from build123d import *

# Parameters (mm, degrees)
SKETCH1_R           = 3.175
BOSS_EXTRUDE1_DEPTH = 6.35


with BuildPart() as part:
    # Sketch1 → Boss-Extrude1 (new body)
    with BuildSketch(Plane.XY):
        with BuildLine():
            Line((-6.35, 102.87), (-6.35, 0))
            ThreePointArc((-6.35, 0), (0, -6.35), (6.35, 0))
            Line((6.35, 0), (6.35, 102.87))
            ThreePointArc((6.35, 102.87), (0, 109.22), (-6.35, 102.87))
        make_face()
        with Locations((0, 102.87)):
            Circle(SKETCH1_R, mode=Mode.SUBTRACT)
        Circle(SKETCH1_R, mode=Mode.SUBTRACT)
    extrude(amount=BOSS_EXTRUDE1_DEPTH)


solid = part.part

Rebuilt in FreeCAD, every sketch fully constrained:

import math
import FreeCAD as App
import Part
import Sketcher
Q = App.Units.Quantity

doc = App.newDocument("Part")
params = doc.addObject("Spreadsheet::Sheet", "Params")
for row, (alias, value) in enumerate([
    ("sketch1_diameter", "0.25 in"),
    ("sketch1_radius", "0.25 in"),
    ("sketch1_height", "4.05 in"),
    ("pad1_length", "0.25 in"),
], start=1):
    params.set(f"A{row}", alias)
    params.set(f"B{row}", "=" + value)
    params.setAlias(f"B{row}", alias)

body = doc.addObject("PartDesign::Body", "Body")

sketch1 = doc.addObject("Sketcher::SketchObject", "Sketch")
body.addObject(sketch1)
sketch1.AttachmentSupport = (doc.XY_Plane, [""])
sketch1.MapMode = "FlatFace"
sketch1.addGeometry(Part.LineSegment(App.Vector(-6.3, 102.9, 0), App.Vector(-6.3, 0, 0)), False)
sketch1.addGeometry(Part.ArcOfCircle(Part.Circle(App.Vector(0, 0, 0), App.Vector(0, 0, 1), 6.3), math.radians(180), math.radians(360)), False)
sketch1.addGeometry(Part.LineSegment(App.Vector(6.3, 0, 0), App.Vector(6.3, 102.9, 0)), False)
sketch1.addGeometry(Part.ArcOfCircle(Part.Circle(App.Vector(0, 102.9, 0), App.Vector(0, 0, 1), 6.3), math.radians(0), math.radians(180)), False)
sketch1.addGeometry(Part.Circle(App.Vector(0, 0, 0), App.Vector(0, 0, 1), 3.2), False)
sketch1.addGeometry(Part.Circle(App.Vector(0, 102.9, 0), App.Vector(0, 0, 1), 3.2), False)
sketch1.addConstraint(Sketcher.Constraint("Tangent", 0, 2, 1, 1))
sketch1.addConstraint(Sketcher.Constraint("Tangent", 1, 2, 2, 1))
sketch1.addConstraint(Sketcher.Constraint("Tangent", 2, 2, 3, 1))
sketch1.addConstraint(Sketcher.Constraint("Tangent", 3, 2, 0, 1))
sketch1.addConstraint(Sketcher.Constraint("Vertical", 0))
sketch1.addConstraint(Sketcher.Constraint("Vertical", 2))
sketch1.addConstraint(Sketcher.Constraint("Coincident", 1, 3, -1, 1))
sketch1.addConstraint(Sketcher.Constraint("Coincident", 4, 3, -1, 1))
sketch1.addConstraint(Sketcher.Constraint("Coincident", 5, 3, 3, 3))
sketch1.addConstraint(Sketcher.Constraint("Equal", 4, 5))
sketch1.addConstraint(Sketcher.Constraint("Diameter", 4, Q("0.25 in")))
sketch1.addConstraint(Sketcher.Constraint("Radius", 1, Q("0.25 in")))
sketch1.addConstraint(Sketcher.Constraint("DistanceY", 0, 2, 0, 1, Q("4.05 in")))
sketch1.setExpression("Constraints[10]", "Params.sketch1_diameter")
sketch1.setExpression("Constraints[11]", "Params.sketch1_radius")
sketch1.setExpression("Constraints[12]", "Params.sketch1_height")
pad1 = doc.addObject("PartDesign::Pad", "Pad")
body.addObject(pad1)
pad1.Profile = sketch1
pad1.setExpression("Length", "Params.pad1_length")

doc.recompute()
